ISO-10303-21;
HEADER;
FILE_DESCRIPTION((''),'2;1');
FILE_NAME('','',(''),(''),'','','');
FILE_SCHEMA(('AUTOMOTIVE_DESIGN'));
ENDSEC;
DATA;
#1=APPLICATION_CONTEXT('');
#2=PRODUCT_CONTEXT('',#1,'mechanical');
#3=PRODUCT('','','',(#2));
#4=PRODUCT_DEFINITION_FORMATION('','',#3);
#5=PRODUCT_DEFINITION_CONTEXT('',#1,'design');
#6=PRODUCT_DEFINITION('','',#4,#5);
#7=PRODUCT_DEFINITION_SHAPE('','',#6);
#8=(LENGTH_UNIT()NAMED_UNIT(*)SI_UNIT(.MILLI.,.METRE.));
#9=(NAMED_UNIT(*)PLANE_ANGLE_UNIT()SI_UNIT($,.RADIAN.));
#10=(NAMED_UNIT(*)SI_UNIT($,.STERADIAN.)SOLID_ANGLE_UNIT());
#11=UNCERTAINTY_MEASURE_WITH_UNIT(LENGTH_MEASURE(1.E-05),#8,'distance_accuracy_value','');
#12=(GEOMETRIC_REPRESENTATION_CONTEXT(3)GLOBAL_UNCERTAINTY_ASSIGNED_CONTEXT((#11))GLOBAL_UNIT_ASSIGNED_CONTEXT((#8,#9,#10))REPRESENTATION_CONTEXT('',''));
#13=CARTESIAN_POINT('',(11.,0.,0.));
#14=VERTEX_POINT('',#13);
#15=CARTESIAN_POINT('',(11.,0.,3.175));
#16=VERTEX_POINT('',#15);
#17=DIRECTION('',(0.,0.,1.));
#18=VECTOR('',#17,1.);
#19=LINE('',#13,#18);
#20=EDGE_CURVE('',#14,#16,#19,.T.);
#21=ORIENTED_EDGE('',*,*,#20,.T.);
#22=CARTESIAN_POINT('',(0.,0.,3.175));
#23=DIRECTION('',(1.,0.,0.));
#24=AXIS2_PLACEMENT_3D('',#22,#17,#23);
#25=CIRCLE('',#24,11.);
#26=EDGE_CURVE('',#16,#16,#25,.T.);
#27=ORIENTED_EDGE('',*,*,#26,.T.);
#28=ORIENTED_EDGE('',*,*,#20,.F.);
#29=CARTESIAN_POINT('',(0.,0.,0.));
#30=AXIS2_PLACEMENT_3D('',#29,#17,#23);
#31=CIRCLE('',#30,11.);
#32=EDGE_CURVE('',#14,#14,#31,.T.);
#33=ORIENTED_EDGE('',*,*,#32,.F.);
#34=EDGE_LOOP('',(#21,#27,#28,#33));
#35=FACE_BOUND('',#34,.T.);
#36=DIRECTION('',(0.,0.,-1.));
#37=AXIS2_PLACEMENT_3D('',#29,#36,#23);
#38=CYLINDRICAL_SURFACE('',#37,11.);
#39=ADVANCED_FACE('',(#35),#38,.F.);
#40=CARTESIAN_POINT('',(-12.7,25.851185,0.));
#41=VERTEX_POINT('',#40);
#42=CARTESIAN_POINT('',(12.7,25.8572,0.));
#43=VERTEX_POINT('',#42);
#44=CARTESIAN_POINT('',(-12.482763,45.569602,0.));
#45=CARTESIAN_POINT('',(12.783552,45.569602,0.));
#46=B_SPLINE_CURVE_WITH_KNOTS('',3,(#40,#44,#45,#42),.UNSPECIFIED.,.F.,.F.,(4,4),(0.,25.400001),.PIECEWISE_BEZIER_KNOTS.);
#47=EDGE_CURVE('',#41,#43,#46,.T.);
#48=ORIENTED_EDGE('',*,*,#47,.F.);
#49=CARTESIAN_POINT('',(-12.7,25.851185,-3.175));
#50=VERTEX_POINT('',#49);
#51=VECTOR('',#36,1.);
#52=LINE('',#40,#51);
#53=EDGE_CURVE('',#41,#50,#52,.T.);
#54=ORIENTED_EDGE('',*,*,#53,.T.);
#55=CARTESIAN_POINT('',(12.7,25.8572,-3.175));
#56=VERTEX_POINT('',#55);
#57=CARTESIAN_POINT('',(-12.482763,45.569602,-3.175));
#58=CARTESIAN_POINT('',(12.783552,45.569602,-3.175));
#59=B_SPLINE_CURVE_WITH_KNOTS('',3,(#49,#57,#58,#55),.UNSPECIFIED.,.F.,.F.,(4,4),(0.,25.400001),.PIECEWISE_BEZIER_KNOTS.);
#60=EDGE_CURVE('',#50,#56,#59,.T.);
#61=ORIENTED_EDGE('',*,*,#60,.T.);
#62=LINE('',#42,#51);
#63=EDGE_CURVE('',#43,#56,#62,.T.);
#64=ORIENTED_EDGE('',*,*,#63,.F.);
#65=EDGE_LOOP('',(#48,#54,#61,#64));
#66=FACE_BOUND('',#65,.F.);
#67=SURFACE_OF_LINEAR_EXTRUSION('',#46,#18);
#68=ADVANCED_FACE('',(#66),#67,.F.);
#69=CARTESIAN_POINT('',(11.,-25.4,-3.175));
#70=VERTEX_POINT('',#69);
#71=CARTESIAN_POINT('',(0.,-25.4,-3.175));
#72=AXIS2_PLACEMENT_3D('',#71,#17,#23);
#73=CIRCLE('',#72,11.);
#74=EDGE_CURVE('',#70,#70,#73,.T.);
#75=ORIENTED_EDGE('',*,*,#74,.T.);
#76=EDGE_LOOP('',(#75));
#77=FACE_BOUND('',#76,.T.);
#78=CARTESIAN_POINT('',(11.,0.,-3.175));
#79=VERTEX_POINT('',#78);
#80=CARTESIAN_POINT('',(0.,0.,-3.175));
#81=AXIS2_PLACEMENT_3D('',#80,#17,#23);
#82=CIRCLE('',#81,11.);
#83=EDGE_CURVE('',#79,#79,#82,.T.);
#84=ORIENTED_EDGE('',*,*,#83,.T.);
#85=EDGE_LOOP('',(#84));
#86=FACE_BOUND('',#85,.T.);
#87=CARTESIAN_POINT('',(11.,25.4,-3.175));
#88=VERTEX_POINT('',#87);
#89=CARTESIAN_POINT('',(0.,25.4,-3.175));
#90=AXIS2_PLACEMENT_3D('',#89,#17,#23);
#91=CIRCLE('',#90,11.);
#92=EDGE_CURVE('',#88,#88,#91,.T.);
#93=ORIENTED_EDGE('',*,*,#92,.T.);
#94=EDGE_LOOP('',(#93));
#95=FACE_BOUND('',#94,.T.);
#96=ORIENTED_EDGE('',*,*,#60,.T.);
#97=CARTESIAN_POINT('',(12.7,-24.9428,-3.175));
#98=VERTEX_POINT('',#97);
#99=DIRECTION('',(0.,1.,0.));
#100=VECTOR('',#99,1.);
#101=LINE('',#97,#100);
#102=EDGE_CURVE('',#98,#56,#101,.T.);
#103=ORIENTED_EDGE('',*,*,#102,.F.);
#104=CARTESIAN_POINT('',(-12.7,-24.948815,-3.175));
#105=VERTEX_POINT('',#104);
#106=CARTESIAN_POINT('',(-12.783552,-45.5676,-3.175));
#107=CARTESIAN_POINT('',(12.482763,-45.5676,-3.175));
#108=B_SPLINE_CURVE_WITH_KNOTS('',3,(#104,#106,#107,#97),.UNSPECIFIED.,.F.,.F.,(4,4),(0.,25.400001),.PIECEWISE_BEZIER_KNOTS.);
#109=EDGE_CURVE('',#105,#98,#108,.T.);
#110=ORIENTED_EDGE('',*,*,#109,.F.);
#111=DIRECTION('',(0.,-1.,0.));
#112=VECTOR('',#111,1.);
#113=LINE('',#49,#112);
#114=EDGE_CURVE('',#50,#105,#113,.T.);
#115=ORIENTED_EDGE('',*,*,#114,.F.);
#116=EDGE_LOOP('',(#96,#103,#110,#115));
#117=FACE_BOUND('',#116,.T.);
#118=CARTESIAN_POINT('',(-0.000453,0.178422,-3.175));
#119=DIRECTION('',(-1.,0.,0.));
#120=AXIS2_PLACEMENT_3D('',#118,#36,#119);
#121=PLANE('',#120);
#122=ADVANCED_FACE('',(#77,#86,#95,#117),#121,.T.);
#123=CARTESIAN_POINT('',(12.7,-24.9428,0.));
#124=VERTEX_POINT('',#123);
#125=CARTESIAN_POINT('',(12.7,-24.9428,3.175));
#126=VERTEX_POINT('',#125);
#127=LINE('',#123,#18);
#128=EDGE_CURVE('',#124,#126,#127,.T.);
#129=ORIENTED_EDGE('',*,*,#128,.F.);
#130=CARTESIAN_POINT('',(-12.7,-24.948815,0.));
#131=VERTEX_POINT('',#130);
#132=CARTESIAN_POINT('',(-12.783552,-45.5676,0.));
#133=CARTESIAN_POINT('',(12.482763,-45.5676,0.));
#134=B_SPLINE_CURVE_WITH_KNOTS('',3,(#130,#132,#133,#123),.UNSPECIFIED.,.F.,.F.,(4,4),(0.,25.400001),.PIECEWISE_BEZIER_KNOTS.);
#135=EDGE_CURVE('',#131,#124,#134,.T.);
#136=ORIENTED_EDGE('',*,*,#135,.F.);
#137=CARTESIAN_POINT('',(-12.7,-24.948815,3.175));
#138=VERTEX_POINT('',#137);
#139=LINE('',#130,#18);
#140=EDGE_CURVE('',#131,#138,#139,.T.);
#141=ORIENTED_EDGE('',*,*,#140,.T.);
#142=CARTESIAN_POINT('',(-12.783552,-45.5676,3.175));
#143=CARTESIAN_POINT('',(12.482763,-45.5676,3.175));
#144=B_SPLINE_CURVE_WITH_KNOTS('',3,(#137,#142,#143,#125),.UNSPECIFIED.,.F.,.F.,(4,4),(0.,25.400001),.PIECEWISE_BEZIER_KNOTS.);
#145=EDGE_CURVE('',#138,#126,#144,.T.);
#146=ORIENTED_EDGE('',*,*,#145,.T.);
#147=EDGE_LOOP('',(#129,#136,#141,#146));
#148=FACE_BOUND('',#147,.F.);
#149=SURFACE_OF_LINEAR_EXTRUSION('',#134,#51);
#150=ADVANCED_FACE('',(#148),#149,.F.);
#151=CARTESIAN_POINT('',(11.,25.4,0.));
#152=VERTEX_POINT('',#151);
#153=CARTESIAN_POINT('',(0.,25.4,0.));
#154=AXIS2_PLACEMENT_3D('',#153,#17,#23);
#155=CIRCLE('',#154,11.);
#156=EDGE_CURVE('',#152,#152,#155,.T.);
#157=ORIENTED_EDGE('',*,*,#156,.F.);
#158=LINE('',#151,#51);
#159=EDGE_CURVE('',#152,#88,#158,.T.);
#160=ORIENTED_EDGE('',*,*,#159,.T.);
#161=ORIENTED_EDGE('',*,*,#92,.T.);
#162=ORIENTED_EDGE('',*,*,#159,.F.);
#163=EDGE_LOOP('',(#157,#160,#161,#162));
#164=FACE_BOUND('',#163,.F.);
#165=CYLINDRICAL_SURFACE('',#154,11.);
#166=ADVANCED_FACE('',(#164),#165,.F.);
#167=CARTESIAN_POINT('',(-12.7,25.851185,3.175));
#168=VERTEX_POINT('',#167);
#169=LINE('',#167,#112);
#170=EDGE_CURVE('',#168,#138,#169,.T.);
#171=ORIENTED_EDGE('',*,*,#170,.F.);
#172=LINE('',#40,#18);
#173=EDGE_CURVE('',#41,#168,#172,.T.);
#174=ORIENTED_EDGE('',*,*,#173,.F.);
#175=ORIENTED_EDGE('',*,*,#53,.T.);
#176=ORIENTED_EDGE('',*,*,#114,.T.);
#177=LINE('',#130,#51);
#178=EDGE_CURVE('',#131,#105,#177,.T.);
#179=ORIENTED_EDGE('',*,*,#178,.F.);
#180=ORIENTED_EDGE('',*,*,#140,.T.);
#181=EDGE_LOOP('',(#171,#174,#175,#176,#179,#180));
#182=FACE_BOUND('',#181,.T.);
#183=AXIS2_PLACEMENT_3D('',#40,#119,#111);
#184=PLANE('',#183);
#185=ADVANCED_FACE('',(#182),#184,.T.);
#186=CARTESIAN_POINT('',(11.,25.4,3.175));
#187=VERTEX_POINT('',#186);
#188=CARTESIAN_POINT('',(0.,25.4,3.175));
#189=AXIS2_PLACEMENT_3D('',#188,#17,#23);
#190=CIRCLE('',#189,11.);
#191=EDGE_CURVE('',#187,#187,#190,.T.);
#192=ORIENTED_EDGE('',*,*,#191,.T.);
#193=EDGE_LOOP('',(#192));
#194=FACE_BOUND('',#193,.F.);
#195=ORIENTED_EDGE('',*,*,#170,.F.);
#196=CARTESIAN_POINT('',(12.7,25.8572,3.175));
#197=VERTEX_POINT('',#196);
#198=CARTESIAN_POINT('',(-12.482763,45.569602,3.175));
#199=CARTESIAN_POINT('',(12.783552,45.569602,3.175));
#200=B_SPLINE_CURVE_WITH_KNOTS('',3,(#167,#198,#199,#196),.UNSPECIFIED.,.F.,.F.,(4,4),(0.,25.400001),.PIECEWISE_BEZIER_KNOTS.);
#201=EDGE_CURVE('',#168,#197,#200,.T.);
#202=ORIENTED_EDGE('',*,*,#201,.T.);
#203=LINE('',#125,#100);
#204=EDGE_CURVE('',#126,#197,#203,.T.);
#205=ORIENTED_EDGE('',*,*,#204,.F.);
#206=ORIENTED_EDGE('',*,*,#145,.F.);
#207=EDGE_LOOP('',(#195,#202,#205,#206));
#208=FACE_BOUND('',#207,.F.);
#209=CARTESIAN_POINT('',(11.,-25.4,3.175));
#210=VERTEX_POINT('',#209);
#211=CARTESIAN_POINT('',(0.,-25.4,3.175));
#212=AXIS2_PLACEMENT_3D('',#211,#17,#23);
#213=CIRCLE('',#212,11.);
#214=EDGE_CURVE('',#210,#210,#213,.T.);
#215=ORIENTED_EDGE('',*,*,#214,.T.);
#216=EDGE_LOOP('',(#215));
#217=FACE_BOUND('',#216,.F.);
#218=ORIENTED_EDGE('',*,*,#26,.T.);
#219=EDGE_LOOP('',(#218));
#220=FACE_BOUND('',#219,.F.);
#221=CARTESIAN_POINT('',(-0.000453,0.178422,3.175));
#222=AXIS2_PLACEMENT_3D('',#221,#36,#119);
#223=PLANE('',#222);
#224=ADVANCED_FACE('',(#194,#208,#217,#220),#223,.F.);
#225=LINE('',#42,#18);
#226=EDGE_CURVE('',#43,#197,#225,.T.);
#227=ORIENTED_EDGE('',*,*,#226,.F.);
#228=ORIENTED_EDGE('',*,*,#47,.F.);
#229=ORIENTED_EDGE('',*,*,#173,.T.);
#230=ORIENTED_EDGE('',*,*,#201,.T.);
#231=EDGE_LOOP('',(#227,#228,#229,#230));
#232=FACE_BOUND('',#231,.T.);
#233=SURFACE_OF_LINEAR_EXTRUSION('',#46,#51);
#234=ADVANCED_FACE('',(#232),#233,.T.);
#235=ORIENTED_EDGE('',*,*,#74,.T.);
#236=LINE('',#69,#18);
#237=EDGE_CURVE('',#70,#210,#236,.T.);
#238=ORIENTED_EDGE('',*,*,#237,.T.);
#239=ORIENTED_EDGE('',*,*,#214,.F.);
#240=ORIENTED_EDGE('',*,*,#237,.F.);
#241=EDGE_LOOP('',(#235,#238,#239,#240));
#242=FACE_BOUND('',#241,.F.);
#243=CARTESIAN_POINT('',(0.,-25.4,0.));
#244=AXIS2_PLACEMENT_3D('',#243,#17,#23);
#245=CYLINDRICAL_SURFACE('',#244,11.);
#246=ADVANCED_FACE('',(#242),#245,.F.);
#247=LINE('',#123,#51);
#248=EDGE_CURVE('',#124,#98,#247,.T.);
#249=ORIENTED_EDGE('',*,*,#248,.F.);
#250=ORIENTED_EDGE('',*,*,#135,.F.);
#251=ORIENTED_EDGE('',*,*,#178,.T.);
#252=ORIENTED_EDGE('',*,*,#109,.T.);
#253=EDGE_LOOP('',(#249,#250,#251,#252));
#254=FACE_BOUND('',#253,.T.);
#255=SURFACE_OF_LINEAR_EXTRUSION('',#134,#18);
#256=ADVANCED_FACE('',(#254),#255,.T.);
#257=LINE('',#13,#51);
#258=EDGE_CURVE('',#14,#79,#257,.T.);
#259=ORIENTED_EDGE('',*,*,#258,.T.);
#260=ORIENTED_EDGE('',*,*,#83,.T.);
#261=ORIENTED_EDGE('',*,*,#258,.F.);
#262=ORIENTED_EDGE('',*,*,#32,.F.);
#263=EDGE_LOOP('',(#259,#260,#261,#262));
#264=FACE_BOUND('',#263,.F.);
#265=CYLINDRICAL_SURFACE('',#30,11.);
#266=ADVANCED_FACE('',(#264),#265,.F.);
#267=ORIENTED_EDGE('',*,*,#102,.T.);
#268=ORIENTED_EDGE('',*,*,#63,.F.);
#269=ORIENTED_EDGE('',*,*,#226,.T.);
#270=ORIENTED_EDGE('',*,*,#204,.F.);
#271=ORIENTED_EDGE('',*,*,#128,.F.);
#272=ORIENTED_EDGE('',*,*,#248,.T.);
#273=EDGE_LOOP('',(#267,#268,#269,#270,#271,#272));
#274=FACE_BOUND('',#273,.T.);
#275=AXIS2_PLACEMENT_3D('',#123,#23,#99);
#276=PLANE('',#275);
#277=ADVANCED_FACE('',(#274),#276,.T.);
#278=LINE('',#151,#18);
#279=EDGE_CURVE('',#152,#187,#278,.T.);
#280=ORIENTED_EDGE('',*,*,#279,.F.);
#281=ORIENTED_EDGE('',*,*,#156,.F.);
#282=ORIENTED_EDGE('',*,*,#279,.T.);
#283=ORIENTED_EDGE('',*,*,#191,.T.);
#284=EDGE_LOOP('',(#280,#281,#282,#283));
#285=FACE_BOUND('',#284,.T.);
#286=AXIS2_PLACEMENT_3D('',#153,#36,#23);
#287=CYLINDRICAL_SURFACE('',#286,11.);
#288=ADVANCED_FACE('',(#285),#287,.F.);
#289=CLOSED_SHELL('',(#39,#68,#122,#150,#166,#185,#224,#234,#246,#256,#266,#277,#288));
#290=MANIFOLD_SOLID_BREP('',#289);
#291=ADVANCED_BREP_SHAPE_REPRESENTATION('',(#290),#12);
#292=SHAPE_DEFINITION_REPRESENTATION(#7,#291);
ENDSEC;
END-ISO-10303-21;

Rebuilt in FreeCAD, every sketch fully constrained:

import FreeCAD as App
import Part
import Sketcher
Q = App.Units.Quantity

doc = App.newDocument("Part")
body = doc.addObject("PartDesign::Body", "Body")

# Sketch on XY plane
sketch1 = body.newObject("Sketcher::SketchObject", "Sketch")
sketch1.AttachmentSupport = (doc.getObject("XY_Plane"), [""])
sketch1.MapMode = "FlatFace"
sketch1.addGeometry([
    Part.BSplineCurve([App.Vector(-12.7, 25.851185, 0), App.Vector(-12.482763, 45.569602, 0), App.Vector(12.783552, 45.569602, 0), App.Vector(12.7, 25.8572, 0)], [4, 4], [0, 25.400001], False, 3, [1, 1, 1, 1], False),
    Part.LineSegment(App.Vector(-12.7, 25.851185, 0), App.Vector(-12.7, -24.948815, 0)),
    Part.BSplineCurve([App.Vector(-12.7, -24.948815, 0), App.Vector(-12.783552, -45.5676, 0), App.Vector(12.482763, -45.5676, 0), App.Vector(12.7, -24.9428, 0)], [4, 4], [0, 25.400001], False, 3, [1, 1, 1, 1], False),
    Part.LineSegment(App.Vector(12.7, -24.9428, 0), App.Vector(12.7, 25.8572, 0)),
], False)
sketch1.addConstraint([
    Sketcher.Constraint("Block", 0),
    Sketcher.Constraint("Block", 2),
    Sketcher.Constraint("Coincident", 0, 1, 1, 1),
    Sketcher.Constraint("Coincident", 1, 2, 2, 1),
    Sketcher.Constraint("Coincident", 2, 2, 3, 1),
    Sketcher.Constraint("Coincident", 3, 2, 0, 2),
])
pad1 = body.newObject("PartDesign::Pad", "Pad")
pad1.Profile = sketch1
pad1.Length = Q("0.25 in")
pad1.Midplane = True

# Sketch on XY plane
sketch2 = body.newObject("Sketcher::SketchObject", "Sketch001")
sketch2.AttachmentSupport = (doc.getObject("XY_Plane"), [""])
sketch2.MapMode = "FlatFace"
sketch2.addGeometry([
    Part.Circle(App.Vector(0, 0, 0), App.Vector(0, 0, 1), 11),
    Part.Circle(App.Vector(0, 25.4, 0), App.Vector(0, 0, 1), 11),
    Part.Circle(App.Vector(0, -25.4, 0), App.Vector(0, 0, 1), 11),
], False)
sketch2.addConstraint([
    Sketcher.Constraint("Coincident", 0, 3, -1, 1),
    Sketcher.Constraint("Equal", 0, 1),
    Sketcher.Constraint("Equal", 1, 2),
    Sketcher.Constraint("Symmetric", 1, 3, 2, 3, -1, 1),
    Sketcher.Constraint("PointOnObject", 1, 3, -2),
    Sketcher.Constraint("DistanceY", -1, 1, 1, 3, Q("1 in")),
    Sketcher.Constraint("Diameter", 0, 22.0),
])
pocket1 = body.newObject("PartDesign::Pocket", "Pocket")
pocket1.Profile = sketch2
pocket1.Length = Q("0.25 in")
pocket1.Midplane = True

doc.recompute()
